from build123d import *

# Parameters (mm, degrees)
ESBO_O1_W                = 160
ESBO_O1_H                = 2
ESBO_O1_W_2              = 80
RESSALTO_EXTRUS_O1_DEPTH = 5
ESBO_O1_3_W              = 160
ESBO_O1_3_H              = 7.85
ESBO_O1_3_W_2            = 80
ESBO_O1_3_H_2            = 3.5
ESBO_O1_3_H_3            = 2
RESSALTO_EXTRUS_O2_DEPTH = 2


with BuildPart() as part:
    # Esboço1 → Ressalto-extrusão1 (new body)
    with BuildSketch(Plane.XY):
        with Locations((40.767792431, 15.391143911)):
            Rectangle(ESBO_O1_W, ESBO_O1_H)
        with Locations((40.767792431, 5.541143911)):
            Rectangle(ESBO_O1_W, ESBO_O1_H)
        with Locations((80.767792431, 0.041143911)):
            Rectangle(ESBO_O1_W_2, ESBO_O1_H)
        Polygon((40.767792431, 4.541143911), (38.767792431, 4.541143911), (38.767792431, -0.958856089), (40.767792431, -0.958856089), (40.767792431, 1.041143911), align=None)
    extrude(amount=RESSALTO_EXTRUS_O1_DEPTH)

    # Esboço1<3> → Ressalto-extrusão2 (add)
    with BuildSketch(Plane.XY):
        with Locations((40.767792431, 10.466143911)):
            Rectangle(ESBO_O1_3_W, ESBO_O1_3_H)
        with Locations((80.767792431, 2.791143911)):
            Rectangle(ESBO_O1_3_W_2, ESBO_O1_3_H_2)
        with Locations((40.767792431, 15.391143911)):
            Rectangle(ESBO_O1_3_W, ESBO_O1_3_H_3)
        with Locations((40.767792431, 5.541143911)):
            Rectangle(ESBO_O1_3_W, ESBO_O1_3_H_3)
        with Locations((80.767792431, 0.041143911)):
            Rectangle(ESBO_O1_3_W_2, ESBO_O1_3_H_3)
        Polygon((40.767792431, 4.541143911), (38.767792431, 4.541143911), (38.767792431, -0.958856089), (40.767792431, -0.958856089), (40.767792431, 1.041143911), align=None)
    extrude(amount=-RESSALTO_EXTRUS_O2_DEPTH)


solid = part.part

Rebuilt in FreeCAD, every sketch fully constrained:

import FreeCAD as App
import Part
import Sketcher
from FreeCAD import Vector

doc = App.newDocument("Part")
params = doc.addObject("Spreadsheet::Sheet", "Params")
for row, (alias, value) in enumerate([
    ("sketch1_width", "160 mm"),
    ("sketch1_width2", "78 mm"),
    ("sketch1_width3", "80 mm"),
    ("sketch1_height", "2 mm"),
    ("sketch1_height2", "5.5 mm"),
    ("pad1_length", "5 mm"),
    ("sketch2_width", "160 mm"),
    ("sketch2_width2", "78 mm"),
    ("sketch2_height", "5.5 mm"),
    ("sketch2_height2", "11.85 mm"),
    ("pad2_length", "2 mm"),
], start=1):
    params.set(f"A{row}", alias)
    params.set(f"B{row}", "=" + value)
    params.setAlias(f"B{row}", alias)

body = doc.addObject("PartDesign::Body", "Body")
body.AllowCompound = True

sketch1 = body.newObject("Sketcher::SketchObject", "Sketch")
sketch1.AttachmentSupport = (doc.getObject("XY_Plane"), [""])
sketch1.MapMode = "FlatFace"
sketch1.addGeometry(Part.LineSegment(Vector(-39.232208, 16.391144, 0), Vector(-39.232208, 14.391144, 0)), False)
sketch1.addGeometry(Part.LineSegment(Vector(-39.232208, 14.391144, 0), Vector(120.767792, 14.391144, 0)), False)
sketch1.addGeometry(Part.LineSegment(Vector(120.767792, 14.391144, 0), Vector(120.767792, 16.391144, 0)), False)
sketch1.addGeometry(Part.LineSegment(Vector(120.767792, 16.391144, 0), Vector(-39.232208, 16.391144, 0)), False)
sketch1.addGeometry(Part.LineSegment(Vector(-39.232208, 6.541144, 0), Vector(-39.232208, 4.541144, 0)), False)
sketch1.addGeometry(Part.LineSegment(Vector(-39.232208, 4.541144, 0), Vector(38.767792, 4.541144, 0)), False)
sketch1.addGeometry(Part.LineSegment(Vector(38.767792, 4.541144, 0), Vector(38.767792, -0.958856, 0)), False)
sketch1.addGeometry(Part.LineSegment(Vector(38.767792, -0.958856, 0), Vector(120.767792, -0.958856, 0)), False)
sketch1.addGeometry(Part.LineSegment(Vector(120.767792, -0.958856, 0), Vector(120.767792, 1.041144, 0)), False)
sketch1.addGeometry(Part.LineSegment(Vector(120.767792, 1.041144, 0), Vector(40.767792, 1.041144, 0)), False)
sketch1.addGeometry(Part.LineSegment(Vector(40.767792, 1.041144, 0), Vector(40.767792, 4.541144, 0)), False)
sketch1.addGeometry(Part.LineSegment(Vector(40.767792, 4.541144, 0), Vector(120.767792, 4.541144, 0)), False)
sketch1.addGeometry(Part.LineSegment(Vector(120.767792, 4.541144, 0), Vector(120.767792, 6.541144, 0)), False)
sketch1.addGeometry(Part.LineSegment(Vector(120.767792, 6.541144, 0), Vector(-39.232208, 6.541144, 0)), False)
sketch1.addConstraint(Sketcher.Constraint("Coincident", 0, 2, 1, 1))
sketch1.addConstraint(Sketcher.Constraint("Coincident", 1, 2, 2, 1))
sketch1.addConstraint(Sketcher.Constraint("Coincident", 2, 2, 3, 1))
sketch1.addConstraint(Sketcher.Constraint("Coincident", 3, 2, 0, 1))
sketch1.addConstraint(Sketcher.Constraint("Coincident", 4, 2, 5, 1))
sketch1.addConstraint(Sketcher.Constraint("Coincident", 5, 2, 6, 1))
sketch1.addConstraint(Sketcher.Constraint("Coincident", 6, 2, 7, 1))
sketch1.addConstraint(Sketcher.Constraint("Coincident", 7, 2, 8, 1))
sketch1.addConstraint(Sketcher.Constraint("Coincident", 8, 2, 9, 1))
sketch1.addConstraint(Sketcher.Constraint("Coincident", 9, 2, 10, 1))
sketch1.addConstraint(Sketcher.Constraint("Coincident", 10, 2, 11, 1))
sketch1.addConstraint(Sketcher.Constraint("Coincident", 11, 2, 12, 1))
sketch1.addConstraint(Sketcher.Constraint("Coincident", 12, 2, 13, 1))
sketch1.addConstraint(Sketcher.Constraint("Coincident", 13, 2, 4, 1))
sketch1.addConstraint(Sketcher.Constraint("Vertical", 0))
sketch1.addConstraint(Sketcher.Constraint("Horizontal", 1))
sketch1.addConstraint(Sketcher.Constraint("Vertical", 2))
sketch1.addConstraint(Sketcher.Constraint("Horizontal", 3))
sketch1.addConstraint(Sketcher.Constraint("Vertical", 4))
sketch1.addConstraint(Sketcher.Constraint("Horizontal", 5))
sketch1.addConstraint(Sketcher.Constraint("Vertical", 6))
sketch1.addConstraint(Sketcher.Constraint("Horizontal", 7))
sketch1.addConstraint(Sketcher.Constraint("Vertical", 8))
sketch1.addConstraint(Sketcher.Constraint("Horizontal", 9))
sketch1.addConstraint(Sketcher.Constraint("Vertical", 10))
sketch1.addConstraint(Sketcher.Constraint("Horizontal", 11))
sketch1.addConstraint(Sketcher.Constraint("Vertical", 12))
sketch1.addConstraint(Sketcher.Constraint("Horizontal", 13))
sketch1.addConstraint(Sketcher.Constraint("Horizontal", 5, 2, 10, 2))
sketch1.addConstraint(Sketcher.Constraint("Vertical", 3, 2, 4, 2))
sketch1.addConstraint(Sketcher.Constraint("Vertical", 2, 2, 7, 2))
sketch1.addConstraint(Sketcher.Constraint("Vertical", 8, 2, 11, 2))
sketch1.addConstraint(Sketcher.Constraint("Equal", 2, 4))
sketch1.addConstraint(Sketcher.Constraint("Equal", 4, 8))
sketch1.addConstraint(Sketcher.Constraint("DistanceX", 1, 1, 1, 2, 160.0))
sketch1.addConstraint(Sketcher.Constraint("DistanceX", 5, 1, 5, 2, 78.0))
sketch1.addConstraint(Sketcher.Constraint("DistanceX", 9, 2, 9, 1, 80.0))
sketch1.addConstraint(Sketcher.Constraint("DistanceY", 0, 2, 0, 1, 2.0))
sketch1.addConstraint(Sketcher.Constraint("DistanceY", 6, 2, 6, 1, 5.5))
sketch1.addConstraint(Sketcher.Constraint("DistanceY", 4, 2, 0, 2, 9.85))
sketch1.addConstraint(Sketcher.Constraint("DistanceX", 0, 2, -1, 1, 39.232208))
sketch1.addConstraint(Sketcher.Constraint("DistanceY", -1, 1, 0, 2, 14.391144))
sketch1.setExpression("Constraints[34]", "Params.sketch1_width")
sketch1.setExpression("Constraints[35]", "Params.sketch1_width2")
sketch1.setExpression("Constraints[36]", "Params.sketch1_width3")
sketch1.setExpression("Constraints[37]", "Params.sketch1_height")
sketch1.setExpression("Constraints[38]", "Params.sketch1_height2")
pad1 = body.newObject("PartDesign::Pad", "Pad")
pad1.Profile = sketch1
pad1.setExpression("Length", "Params.pad1_length")

sketch2 = body.newObject("Sketcher::SketchObject", "Sketch001")
sketch2.AttachmentSupport = (doc.getObject("XY_Plane"), [""])
sketch2.MapMode = "FlatFace"
sketch2.addGeometry(Part.LineSegment(Vector(120.767792, 16.391144, 0), Vector(-39.232208, 16.391144, 0)), False)
sketch2.addGeometry(Part.LineSegment(Vector(-39.232208, 16.391144, 0), Vector(-39.232208, 4.541144, 0)), False)
sketch2.addGeometry(Part.LineSegment(Vector(-39.232208, 4.541144, 0), Vector(38.767792, 4.541144, 0)), False)
sketch2.addGeometry(Part.LineSegment(Vector(38.767792, 4.541144, 0), Vector(38.767792, -0.958856, 0)), False)
sketch2.addGeometry(Part.LineSegment(Vector(38.767792, -0.958856, 0), Vector(120.767792, -0.958856, 0)), False)
sketch2.addGeometry(Part.LineSegment(Vector(120.767792, -0.958856, 0), Vector(120.767792, 16.391144, 0)), False)
sketch2.addConstraint(Sketcher.Constraint("Coincident", 0, 2, 1, 1))
sketch2.addConstraint(Sketcher.Constraint("Coincident", 1, 2, 2, 1))
sketch2.addConstraint(Sketcher.Constraint("Coincident", 2, 2, 3, 1))
sketch2.addConstraint(Sketcher.Constraint("Coincident", 3, 2, 4, 1))
sketch2.addConstraint(Sketcher.Constraint("Coincident", 4, 2, 5, 1))
sketch2.addConstraint(Sketcher.Constraint("Coincident", 5, 2, 0, 1))
sketch2.addConstraint(Sketcher.Constraint("Horizontal", 0))
sketch2.addConstraint(Sketcher.Constraint("Vertical", 1))
sketch2.addConstraint(Sketcher.Constraint("Horizontal", 2))
sketch2.addConstraint(Sketcher.Constraint("Vertical", 3))
sketch2.addConstraint(Sketcher.Constraint("Horizontal", 4))
sketch2.addConstraint(Sketcher.Constraint("Vertical", 5))
sketch2.addConstraint(Sketcher.Constraint("DistanceX", 0, 2, 0, 1, 160.0))
sketch2.addConstraint(Sketcher.Constraint("DistanceX", 2, 1, 2, 2, 78.0))
sketch2.addConstraint(Sketcher.Constraint("DistanceY", 3, 2, 3, 1, 5.5))
sketch2.addConstraint(Sketcher.Constraint("DistanceY", 1, 2, 1, 1, 11.85))
sketch2.addConstraint(Sketcher.Constraint("DistanceX", 0, 2, -1, 1, 39.232208))
sketch2.addConstraint(Sketcher.Constraint("DistanceY", -1, 1, 0, 2, 16.391144))
sketch2.setExpression("Constraints[12]", "Params.sketch2_width")
sketch2.setExpression("Constraints[13]", "Params.sketch2_width2")
sketch2.setExpression("Constraints[14]", "Params.sketch2_height")
sketch2.setExpression("Constraints[15]", "Params.sketch2_height2")
pad2 = body.newObject("PartDesign::Pad", "Pad001")
pad2.Profile = sketch2
pad2.setExpression("Length", "Params.pad2_length")
pad2.Reversed = True

doc.recompute()
